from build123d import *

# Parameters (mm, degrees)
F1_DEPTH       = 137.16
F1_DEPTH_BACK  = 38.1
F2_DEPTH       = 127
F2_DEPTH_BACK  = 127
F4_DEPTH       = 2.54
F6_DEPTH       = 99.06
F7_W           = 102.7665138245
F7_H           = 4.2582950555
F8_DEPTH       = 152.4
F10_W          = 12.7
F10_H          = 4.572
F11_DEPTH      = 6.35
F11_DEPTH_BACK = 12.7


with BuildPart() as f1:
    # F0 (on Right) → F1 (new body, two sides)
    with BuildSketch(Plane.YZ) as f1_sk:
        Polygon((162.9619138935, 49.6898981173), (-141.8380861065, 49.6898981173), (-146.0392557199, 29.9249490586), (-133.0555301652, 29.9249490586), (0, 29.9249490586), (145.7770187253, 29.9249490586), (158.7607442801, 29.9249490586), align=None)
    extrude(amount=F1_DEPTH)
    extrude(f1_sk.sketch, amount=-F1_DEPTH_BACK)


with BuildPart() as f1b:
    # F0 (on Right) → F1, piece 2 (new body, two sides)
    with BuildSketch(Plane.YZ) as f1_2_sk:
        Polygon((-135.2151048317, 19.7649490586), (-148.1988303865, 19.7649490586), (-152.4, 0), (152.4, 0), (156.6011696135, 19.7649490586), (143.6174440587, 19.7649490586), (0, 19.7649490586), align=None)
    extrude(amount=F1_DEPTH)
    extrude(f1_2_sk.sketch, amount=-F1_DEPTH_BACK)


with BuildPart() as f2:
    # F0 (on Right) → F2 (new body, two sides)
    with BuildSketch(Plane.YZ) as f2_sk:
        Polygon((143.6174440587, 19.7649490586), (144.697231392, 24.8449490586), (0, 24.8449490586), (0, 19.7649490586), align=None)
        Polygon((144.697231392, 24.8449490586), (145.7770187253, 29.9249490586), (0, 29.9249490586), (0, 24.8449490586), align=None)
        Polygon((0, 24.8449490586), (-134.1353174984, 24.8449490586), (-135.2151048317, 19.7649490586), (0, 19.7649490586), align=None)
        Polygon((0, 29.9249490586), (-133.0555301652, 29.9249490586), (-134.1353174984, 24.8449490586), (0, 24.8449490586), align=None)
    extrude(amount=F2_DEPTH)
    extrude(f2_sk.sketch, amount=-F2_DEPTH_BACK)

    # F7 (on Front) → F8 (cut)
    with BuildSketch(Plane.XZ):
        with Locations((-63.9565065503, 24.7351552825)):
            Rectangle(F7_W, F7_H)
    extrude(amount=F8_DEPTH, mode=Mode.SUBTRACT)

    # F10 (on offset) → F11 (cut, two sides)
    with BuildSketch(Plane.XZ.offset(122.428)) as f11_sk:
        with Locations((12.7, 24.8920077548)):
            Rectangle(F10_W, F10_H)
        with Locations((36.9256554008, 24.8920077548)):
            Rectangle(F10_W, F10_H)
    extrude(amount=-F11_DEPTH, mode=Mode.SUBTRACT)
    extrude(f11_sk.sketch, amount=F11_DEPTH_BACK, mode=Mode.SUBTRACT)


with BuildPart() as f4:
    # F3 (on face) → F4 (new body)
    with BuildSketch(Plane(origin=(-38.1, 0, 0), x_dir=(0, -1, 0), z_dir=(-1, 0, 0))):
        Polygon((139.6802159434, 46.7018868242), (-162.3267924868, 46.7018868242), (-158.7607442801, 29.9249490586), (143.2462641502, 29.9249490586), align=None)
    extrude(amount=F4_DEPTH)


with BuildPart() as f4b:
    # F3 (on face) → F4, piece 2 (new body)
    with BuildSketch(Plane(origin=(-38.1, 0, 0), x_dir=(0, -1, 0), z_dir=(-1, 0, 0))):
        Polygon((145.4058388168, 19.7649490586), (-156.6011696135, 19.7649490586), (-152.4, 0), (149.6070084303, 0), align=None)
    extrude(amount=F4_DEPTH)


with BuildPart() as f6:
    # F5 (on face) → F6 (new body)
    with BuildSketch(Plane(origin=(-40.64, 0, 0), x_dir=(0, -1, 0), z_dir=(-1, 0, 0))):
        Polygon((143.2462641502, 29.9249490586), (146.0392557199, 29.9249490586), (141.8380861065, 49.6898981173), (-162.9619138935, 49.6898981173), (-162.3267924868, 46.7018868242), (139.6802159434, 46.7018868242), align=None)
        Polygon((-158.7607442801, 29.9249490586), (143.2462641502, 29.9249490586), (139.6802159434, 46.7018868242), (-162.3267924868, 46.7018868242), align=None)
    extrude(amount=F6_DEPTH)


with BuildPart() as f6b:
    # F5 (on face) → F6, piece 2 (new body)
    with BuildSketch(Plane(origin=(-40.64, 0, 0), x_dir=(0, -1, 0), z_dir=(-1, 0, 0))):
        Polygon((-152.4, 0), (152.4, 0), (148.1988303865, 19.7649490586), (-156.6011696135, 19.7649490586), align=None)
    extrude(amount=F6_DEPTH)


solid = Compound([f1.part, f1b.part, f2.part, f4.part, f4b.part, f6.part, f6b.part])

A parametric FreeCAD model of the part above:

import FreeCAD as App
import Part
import Sketcher
Q = App.Units.Quantity

doc = App.newDocument("Part")
body = doc.addObject("PartDesign::Body", "Body")

# Sketch on YZ plane
sketch1 = doc.addObject("Sketcher::SketchObject", "Sketch")
body.addObject(sketch1)
sketch1.AttachmentSupport = (doc.YZ_Plane, [""])
sketch1.MapMode = "FlatFace"
sketch1.addGeometry([
    Part.LineSegment(App.Vector(162.961914, 49.689898, 0), App.Vector(-141.838086, 49.689898, 0)),
    Part.LineSegment(App.Vector(-141.838086, 49.689898, 0), App.Vector(-146.039256, 29.924949, 0)),
    Part.LineSegment(App.Vector(-146.039256, 29.924949, 0), App.Vector(158.760744, 29.924949, 0)),
    Part.LineSegment(App.Vector(158.760744, 29.924949, 0), App.Vector(162.961914, 49.689898, 0)),
], False)
sketch1.addConstraint([
    Sketcher.Constraint("Coincident", 0, 2, 1, 1),
    Sketcher.Constraint("Coincident", 1, 2, 2, 1),
    Sketcher.Constraint("Coincident", 2, 2, 3, 1),
    Sketcher.Constraint("Coincident", 3, 2, 0, 1),
    Sketcher.Constraint("Horizontal", 0),
    Sketcher.Constraint("Horizontal", 2),
    Sketcher.Constraint("Parallel", 1, 3),
    Sketcher.Constraint("DistanceX", 0, 2, 0, 1, Q("12 in")),
    Sketcher.Constraint("Angle", 1, Q("-102 deg")),
    Sketcher.Constraint("DistanceY", -1, 1, 0, 2, 49.689898),
    Sketcher.Constraint("Distance", 1, 20.20651),
    Sketcher.Constraint("DistanceX", 0, 2, -1, 1, 141.838086),
])
pad1 = doc.addObject("PartDesign::Pad", "Pad")
body.addObject(pad1)
pad1.Profile = sketch1
pad1.Type = "TwoLengths"
pad1.Length = Q("5.4 in")
pad1.Length2 = Q("1.5 in")
body2 = doc.addObject("PartDesign::Body", "Body001")

# Sketch on YZ plane
sketch2 = doc.addObject("Sketcher::SketchObject", "Sketch001")
body2.addObject(sketch2)
sketch2.AttachmentSupport = (doc.getObject("YZ_Plane001"), [""])
sketch2.MapMode = "FlatFace"
sketch2.addGeometry([
    Part.LineSegment(App.Vector(-148.19883, 19.764949, 0), App.Vector(-152.4, 0, 0)),
    Part.LineSegment(App.Vector(-152.4, 0, 0), App.Vector(152.4, 0, 0)),
    Part.LineSegment(App.Vector(152.4, 0, 0), App.Vector(156.60117, 19.764949, 0)),
    Part.LineSegment(App.Vector(156.60117, 19.764949, 0), App.Vector(-148.19883, 19.764949, 0)),
], False)
sketch2.addConstraint([
    Sketcher.Constraint("Coincident", 0, 2, 1, 1),
    Sketcher.Constraint("Coincident", 1, 2, 2, 1),
    Sketcher.Constraint("Coincident", 2, 2, 3, 1),
    Sketcher.Constraint("Coincident", 3, 2, 0, 1),
    Sketcher.Constraint("Horizontal", 1),
    Sketcher.Constraint("Horizontal", 3),
    Sketcher.Constraint("Symmetric", 0, 2, 1, 2, -1, 1),
    Sketcher.Constraint("Parallel", 0, 2),
    Sketcher.Constraint("DistanceX", 1, 1, 1, 2, Q("12 in")),
    Sketcher.Constraint("Angle", 0, Q("-102 deg")),
    Sketcher.Constraint("Distance", 0, 20.20651),
])
pad2 = doc.addObject("PartDesign::Pad", "Pad001")
body2.addObject(pad2)
pad2.Profile = sketch2
pad2.Type = "TwoLengths"
pad2.Length = Q("5.4 in")
pad2.Length2 = Q("1.5 in")
body3 = doc.addObject("PartDesign::Body", "Body002")

# Sketch on YZ plane
sketch3 = doc.addObject("Sketcher::SketchObject", "Sketch002")
body3.addObject(sketch3)
sketch3.AttachmentSupport = (doc.getObject("YZ_Plane002"), [""])
sketch3.MapMode = "FlatFace"
sketch3.addGeometry([
    Part.LineSegment(App.Vector(143.617444, 19.764949, 0), App.Vector(145.777019, 29.924949, 0)),  # 0
    Part.LineSegment(App.Vector(145.777019, 29.924949, 0), App.Vector(-133.05553, 29.924949, 0)),  # 1
    Part.LineSegment(App.Vector(-133.05553, 29.924949, 0), App.Vector(-134.135317, 24.844949, 0)),  # 2
    Part.LineSegment(App.Vector(-134.135317, 24.844949, 0), App.Vector(-135.215105, 19.764949, 0)),  # 3
    Part.LineSegment(App.Vector(-135.215105, 19.764949, 0), App.Vector(143.617444, 19.764949, 0)),  # 4
], False)
sketch3.addConstraint([
    Sketcher.Constraint("Coincident", 0, 2, 1, 1),
    Sketcher.Constraint("Coincident", 1, 2, 2, 1),
    Sketcher.Constraint("Coincident", 2, 2, 3, 1),
    Sketcher.Constraint("Coincident", 3, 2, 4, 1),
    Sketcher.Constraint("Coincident", 4, 2, 0, 1),
    Sketcher.Constraint("Horizontal", 1),
    Sketcher.Constraint("Horizontal", 4),
    Sketcher.Constraint("Parallel", 0, 2),
    Sketcher.Constraint("Parallel", 2, 3),
    Sketcher.Constraint("Equal", 2, 3),
    Sketcher.Constraint("Angle", 0, Q("78 deg")),
    Sketcher.Constraint("DistanceY", 2, 2, 1, 2, Q("0.2 in")),
    Sketcher.Constraint("DistanceX", 1, 2, 1, 1, 278.832549),
    Sketcher.Constraint("DistanceX", -1, 1, 0, 2, 145.777019),
    Sketcher.Constraint("DistanceY", -1, 1, 0, 2, 29.924949),
])
pad3 = doc.addObject("PartDesign::Pad", "Pad002")
body3.addObject(pad3)
pad3.Profile = sketch3
pad3.Type = "TwoLengths"
pad3.Length = Q("5 in")
pad3.Length2 = Q("5 in")

# Sketch on XZ plane
sketch4 = doc.addObject("Sketcher::SketchObject", "Sketch003")
body3.addObject(sketch4)
sketch4.AttachmentSupport = (doc.getObject("XZ_Plane002"), [""])
sketch4.MapMode = "FlatFace"
sketch4.addGeometry([
    Part.LineSegment(App.Vector(-115.339763, 26.864303, 0), App.Vector(-115.339763, 22.606008, 0)),
    Part.LineSegment(App.Vector(-115.339763, 22.606008, 0), App.Vector(-12.57325, 22.606008, 0)),
    Part.LineSegment(App.Vector(-12.57325, 22.606008, 0), App.Vector(-12.57325, 26.864303, 0)),
    Part.LineSegment(App.Vector(-12.57325, 26.864303, 0), App.Vector(-115.339763, 26.864303, 0)),
], False)
sketch4.addConstraint([
    Sketcher.Constraint("Coincident", 0, 2, 1, 1),
    Sketcher.Constraint("Coincident", 1, 2, 2, 1),
    Sketcher.Constraint("Coincident", 2, 2, 3, 1),
    Sketcher.Constraint("Coincident", 3, 2, 0, 1),
    Sketcher.Constraint("Vertical", 0),
    Sketcher.Constraint("Horizontal", 1),
    Sketcher.Constraint("Vertical", 2),
    Sketcher.Constraint("Horizontal", 3),
    Sketcher.Constraint("DistanceX", 1, 1, 1, 2, 102.766514),
    Sketcher.Constraint("DistanceY", 0, 2, 0, 1, 4.258295),
    Sketcher.Constraint("DistanceX", 1, 2, -1, 1, 12.57325),
    Sketcher.Constraint("DistanceY", -1, 1, 0, 2, 22.606008),
])
pocket1 = doc.addObject("PartDesign::Pocket", "Pocket")
body3.addObject(pocket1)
pocket1.Profile = sketch4
pocket1.Length = Q("6 in")
pocket1.Reversed = True

# Sketch on XZ plane
sketch5 = doc.addObject("Sketcher::SketchObject", "Sketch004")
body3.addObject(sketch5)
sketch5.AttachmentSupport = (doc.getObject("XZ_Plane002"), [""])
sketch5.MapMode = "FlatFace"
sketch5.AttachmentOffset = App.Placement(App.Vector(0, 0, 4.82 * 25.4), App.Rotation())
sketch5.addGeometry([
    Part.LineSegment(App.Vector(6.35, 27.178008, 0), App.Vector(6.35, 22.606008, 0)),  # 0
    Part.LineSegment(App.Vector(6.35, 22.606008, 0), App.Vector(19.05, 22.606008, 0)),  # 1
    Part.LineSegment(App.Vector(19.05, 22.606008, 0), App.Vector(19.05, 27.178008, 0)),  # 2
    Part.LineSegment(App.Vector(19.05, 27.178008, 0), App.Vector(6.35, 27.178008, 0)),  # 3
    Part.LineSegment(App.Vector(30.575655, 27.178008, 0), App.Vector(30.575655, 22.606008, 0)),  # 4
    Part.LineSegment(App.Vector(30.575655, 22.606008, 0), App.Vector(43.275655, 22.606008, 0)),  # 5
    Part.LineSegment(App.Vector(43.275655, 22.606008, 0), App.Vector(43.275655, 27.178008, 0)),  # 6
    Part.LineSegment(App.Vector(43.275655, 27.178008, 0), App.Vector(30.575655, 27.178008, 0)),  # 7
], False)
sketch5.addConstraint([
    Sketcher.Constraint("Coincident", 0, 2, 1, 1),
    Sketcher.Constraint("Coincident", 1, 2, 2, 1),
    Sketcher.Constraint("Coincident", 2, 2, 3, 1),
    Sketcher.Constraint("Coincident", 3, 2, 0, 1),
    Sketcher.Constraint("Coincident", 4, 2, 5, 1),
    Sketcher.Constraint("Coincident", 5, 2, 6, 1),
    Sketcher.Constraint("Coincident", 6, 2, 7, 1),
    Sketcher.Constraint("Coincident", 7, 2, 4, 1),
    Sketcher.Constraint("Vertical", 0),
    Sketcher.Constraint("Horizontal", 1),
    Sketcher.Constraint("Vertical", 2),
    Sketcher.Constraint("Horizontal", 3),
    Sketcher.Constraint("Vertical", 4),
    Sketcher.Constraint("Horizontal", 5),
    Sketcher.Constraint("Vertical", 6),
    Sketcher.Constraint("Horizontal", 7),
    Sketcher.Constraint("Horizontal", 1, 2, 4, 2),
    Sketcher.Constraint("Horizontal", 3, 2, 6, 2),
    Sketcher.Constraint("Equal", 3, 5),
    Sketcher.Constraint("DistanceX", 1, 1, 1, 2, Q("0.5 in")),
    Sketcher.Constraint("DistanceY", 0, 2, 0, 1, Q("0.18 in")),
    Sketcher.Constraint("DistanceX", -1, 1, 0, 2, Q("0.25 in")),
    Sketcher.Constraint("DistanceY", -1, 1, 0, 2, 22.606008),
    Sketcher.Constraint("DistanceX", -1, 1, 4, 2, 30.575655),
])
pocket2 = doc.addObject("PartDesign::Pocket", "Pocket001")
body3.addObject(pocket2)
pocket2.Profile = sketch5
pocket2.Type = "TwoLengths"
pocket2.Length = Q("0.25 in")
pocket2.Length2 = Q("0.5 in")
body4 = doc.addObject("PartDesign::Body", "Body003")

# Sketch on YZ plane
sketch6 = doc.addObject("Sketcher::SketchObject", "Sketch005")
body4.addObject(sketch6)
sketch6.AttachmentSupport = (doc.getObject("YZ_Plane003"), [""])
sketch6.MapMode = "FlatFace"
sketch6.AttachmentOffset = App.Placement(App.Vector(0, 0, -1.5 * 25.4), App.Rotation())
sketch6.addGeometry([
    Part.LineSegment(App.Vector(-139.680216, 46.701887, 0), App.Vector(162.326792, 46.701887, 0)),
    Part.LineSegment(App.Vector(162.326792, 46.701887, 0), App.Vector(158.760744, 29.924949, 0)),
    Part.LineSegment(App.Vector(158.760744, 29.924949, 0), App.Vector(-143.246264, 29.924949, 0)),
    Part.LineSegment(App.Vector(-143.246264, 29.924949, 0), App.Vector(-139.680216, 46.701887, 0)),
], False)
sketch6.addConstraint([
    Sketcher.Constraint("Coincident", 0, 2, 1, 1),
    Sketcher.Constraint("Coincident", 1, 2, 2, 1),
    Sketcher.Constraint("Coincident", 2, 2, 3, 1),
    Sketcher.Constraint("Coincident", 3, 2, 0, 1),
    Sketcher.Constraint("Horizontal", 0),
    Sketcher.Constraint("Horizontal", 2),
    Sketcher.Constraint("Parallel", 1, 3),
    Sketcher.Constraint("Angle", 1, Q("-102 deg")),
    Sketcher.Constraint("DistanceX", 0, 1, 0, 2, 302.007008),
    Sketcher.Constraint("DistanceY", -1, 1, 1, 2, 29.924949),
    Sketcher.Constraint("DistanceX", 1, 2, 0, 2, 3.566048),
    Sketcher.Constraint("DistanceX", -1, 1, 0, 2, 162.326792),
])
pad4 = doc.addObject("PartDesign::Pad", "Pad003")
body4.addObject(pad4)
pad4.Profile = sketch6
pad4.Length = Q("0.1 in")
pad4.Reversed = True
body5 = doc.addObject("PartDesign::Body", "Body004")

# Sketch on YZ plane
sketch7 = doc.addObject("Sketcher::SketchObject", "Sketch006")
body5.addObject(sketch7)
sketch7.AttachmentSupport = (doc.getObject("YZ_Plane004"), [""])
sketch7.MapMode = "FlatFace"
sketch7.AttachmentOffset = App.Placement(App.Vector(0, 0, -1.5 * 25.4), App.Rotation())
sketch7.addGeometry([
    Part.LineSegment(App.Vector(-145.405839, 19.764949, 0), App.Vector(156.60117, 19.764949, 0)),
    Part.LineSegment(App.Vector(156.60117, 19.764949, 0), App.Vector(152.4, 0, 0)),
    Part.LineSegment(App.Vector(152.4, 0, 0), App.Vector(-149.607008, 0, 0)),
    Part.LineSegment(App.Vector(-149.607008, 0, 0), App.Vector(-145.405839, 19.764949, 0)),
], False)
sketch7.addConstraint([
    Sketcher.Constraint("Coincident", 0, 2, 1, 1),
    Sketcher.Constraint("Coincident", 1, 2, 2, 1),
    Sketcher.Constraint("Coincident", 2, 2, 3, 1),
    Sketcher.Constraint("Coincident", 3, 2, 0, 1),
    Sketcher.Constraint("Horizontal", 0),
    Sketcher.Constraint("Horizontal", 2),
    Sketcher.Constraint("PointOnObject", 1, 2, -1),
    Sketcher.Constraint("Parallel", 1, 3),
    Sketcher.Constraint("DistanceX", -1, 1, 1, 2, Q("6 in")),
    Sketcher.Constraint("Angle", 1, Q("-102 deg")),
    Sketcher.Constraint("DistanceX", 0, 1, 0, 2, 302.007008),
    Sketcher.Constraint("Distance", 1, 20.20651),
])
pad5 = doc.addObject("PartDesign::Pad", "Pad004")
body5.addObject(pad5)
pad5.Profile = sketch7
pad5.Length = Q("0.1 in")
pad5.Reversed = True
body6 = doc.addObject("PartDesign::Body", "Body005")

# Sketch on YZ plane
sketch8 = doc.addObject("Sketcher::SketchObject", "Sketch007")
body6.addObject(sketch8)
sketch8.AttachmentSupport = (doc.getObject("YZ_Plane005"), [""])
sketch8.MapMode = "FlatFace"
sketch8.AttachmentOffset = App.Placement(App.Vector(0, 0, -1.6 * 25.4), App.Rotation())
sketch8.addGeometry([
    Part.LineSegment(App.Vector(-146.039256, 29.924949, 0), App.Vector(-141.838086, 49.689898, 0)),  # 0
    Part.LineSegment(App.Vector(-141.838086, 49.689898, 0), App.Vector(162.961914, 49.689898, 0)),  # 1
    Part.LineSegment(App.Vector(162.961914, 49.689898, 0), App.Vector(162.326792, 46.701887, 0)),  # 2
    Part.LineSegment(App.Vector(162.326792, 46.701887, 0), App.Vector(158.760744, 29.924949, 0)),  # 3
    Part.LineSegment(App.Vector(158.760744, 29.924949, 0), App.Vector(-146.039256, 29.924949, 0)),  # 4
], False)
sketch8.addConstraint([
    Sketcher.Constraint("Coincident", 0, 2, 1, 1),
    Sketcher.Constraint("Coincident", 1, 2, 2, 1),
    Sketcher.Constraint("Coincident", 2, 2, 3, 1),
    Sketcher.Constraint("Coincident", 3, 2, 4, 1),
    Sketcher.Constraint("Coincident", 4, 2, 0, 1),
    Sketcher.Constraint("Horizontal", 1),
    Sketcher.Constraint("Horizontal", 4),
    Sketcher.Constraint("Parallel", 0, 2),
    Sketcher.Constraint("Parallel", 2, 3),
    Sketcher.Constraint("DistanceX", 1, 1, 1, 2, Q("12 in")),
    Sketcher.Constraint("Angle", 0, Q("78 deg")),
    Sketcher.Constraint("DistanceY", -1, 1, 0, 2, 49.689898),
    Sketcher.Constraint("Distance", 0, 20.20651),
    Sketcher.Constraint("DistanceX", 2, 2, 1, 2, 0.635121),
    Sketcher.Constraint("DistanceX", 0, 2, -1, 1, 141.838086),
])
pad6 = doc.addObject("PartDesign::Pad", "Pad005")
body6.addObject(pad6)
pad6.Profile = sketch8
pad6.Length = Q("3.9 in")
pad6.Reversed = True
body7 = doc.addObject("PartDesign::Body", "Body006")

# Sketch on YZ plane
sketch9 = doc.addObject("Sketcher::SketchObject", "Sketch008")
body7.addObject(sketch9)
sketch9.AttachmentSupport = (doc.getObject("YZ_Plane006"), [""])
sketch9.MapMode = "FlatFace"
sketch9.AttachmentOffset = App.Placement(App.Vector(0, 0, -1.6 * 25.4), App.Rotation())
sketch9.addGeometry([
    Part.LineSegment(App.Vector(152.4, 0, 0), App.Vector(-152.4, 0, 0)),
    Part.LineSegment(App.Vector(-152.4, 0, 0), App.Vector(-148.19883, 19.764949, 0)),
    Part.LineSegment(App.Vector(-148.19883, 19.764949, 0), App.Vector(156.60117, 19.764949, 0)),
    Part.LineSegment(App.Vector(156.60117, 19.764949, 0), App.Vector(152.4, 0, 0)),
], False)
sketch9.addConstraint([
    Sketcher.Constraint("Coincident", 0, 2, 1, 1),
    Sketcher.Constraint("Coincident", 1, 2, 2, 1),
    Sketcher.Constraint("Coincident", 2, 2, 3, 1),
    Sketcher.Constraint("Coincident", 3, 2, 0, 1),
    Sketcher.Constraint("Horizontal", 0),
    Sketcher.Constraint("Horizontal", 2),
    Sketcher.Constraint("Symmetric", 0, 2, 3, 2, -1, 1),
    Sketcher.Constraint("Parallel", 1, 3),
    Sketcher.Constraint("DistanceX", 0, 2, 0, 1, Q("12 in")),
    Sketcher.Constraint("Angle", 1, Q("78 deg")),
    Sketcher.Constraint("Distance", 1, 20.20651),
])
pad7 = doc.addObject("PartDesign::Pad", "Pad006")
body7.addObject(pad7)
pad7.Profile = sketch9
pad7.Length = Q("3.9 in")
pad7.Reversed = True

doc.recompute()
